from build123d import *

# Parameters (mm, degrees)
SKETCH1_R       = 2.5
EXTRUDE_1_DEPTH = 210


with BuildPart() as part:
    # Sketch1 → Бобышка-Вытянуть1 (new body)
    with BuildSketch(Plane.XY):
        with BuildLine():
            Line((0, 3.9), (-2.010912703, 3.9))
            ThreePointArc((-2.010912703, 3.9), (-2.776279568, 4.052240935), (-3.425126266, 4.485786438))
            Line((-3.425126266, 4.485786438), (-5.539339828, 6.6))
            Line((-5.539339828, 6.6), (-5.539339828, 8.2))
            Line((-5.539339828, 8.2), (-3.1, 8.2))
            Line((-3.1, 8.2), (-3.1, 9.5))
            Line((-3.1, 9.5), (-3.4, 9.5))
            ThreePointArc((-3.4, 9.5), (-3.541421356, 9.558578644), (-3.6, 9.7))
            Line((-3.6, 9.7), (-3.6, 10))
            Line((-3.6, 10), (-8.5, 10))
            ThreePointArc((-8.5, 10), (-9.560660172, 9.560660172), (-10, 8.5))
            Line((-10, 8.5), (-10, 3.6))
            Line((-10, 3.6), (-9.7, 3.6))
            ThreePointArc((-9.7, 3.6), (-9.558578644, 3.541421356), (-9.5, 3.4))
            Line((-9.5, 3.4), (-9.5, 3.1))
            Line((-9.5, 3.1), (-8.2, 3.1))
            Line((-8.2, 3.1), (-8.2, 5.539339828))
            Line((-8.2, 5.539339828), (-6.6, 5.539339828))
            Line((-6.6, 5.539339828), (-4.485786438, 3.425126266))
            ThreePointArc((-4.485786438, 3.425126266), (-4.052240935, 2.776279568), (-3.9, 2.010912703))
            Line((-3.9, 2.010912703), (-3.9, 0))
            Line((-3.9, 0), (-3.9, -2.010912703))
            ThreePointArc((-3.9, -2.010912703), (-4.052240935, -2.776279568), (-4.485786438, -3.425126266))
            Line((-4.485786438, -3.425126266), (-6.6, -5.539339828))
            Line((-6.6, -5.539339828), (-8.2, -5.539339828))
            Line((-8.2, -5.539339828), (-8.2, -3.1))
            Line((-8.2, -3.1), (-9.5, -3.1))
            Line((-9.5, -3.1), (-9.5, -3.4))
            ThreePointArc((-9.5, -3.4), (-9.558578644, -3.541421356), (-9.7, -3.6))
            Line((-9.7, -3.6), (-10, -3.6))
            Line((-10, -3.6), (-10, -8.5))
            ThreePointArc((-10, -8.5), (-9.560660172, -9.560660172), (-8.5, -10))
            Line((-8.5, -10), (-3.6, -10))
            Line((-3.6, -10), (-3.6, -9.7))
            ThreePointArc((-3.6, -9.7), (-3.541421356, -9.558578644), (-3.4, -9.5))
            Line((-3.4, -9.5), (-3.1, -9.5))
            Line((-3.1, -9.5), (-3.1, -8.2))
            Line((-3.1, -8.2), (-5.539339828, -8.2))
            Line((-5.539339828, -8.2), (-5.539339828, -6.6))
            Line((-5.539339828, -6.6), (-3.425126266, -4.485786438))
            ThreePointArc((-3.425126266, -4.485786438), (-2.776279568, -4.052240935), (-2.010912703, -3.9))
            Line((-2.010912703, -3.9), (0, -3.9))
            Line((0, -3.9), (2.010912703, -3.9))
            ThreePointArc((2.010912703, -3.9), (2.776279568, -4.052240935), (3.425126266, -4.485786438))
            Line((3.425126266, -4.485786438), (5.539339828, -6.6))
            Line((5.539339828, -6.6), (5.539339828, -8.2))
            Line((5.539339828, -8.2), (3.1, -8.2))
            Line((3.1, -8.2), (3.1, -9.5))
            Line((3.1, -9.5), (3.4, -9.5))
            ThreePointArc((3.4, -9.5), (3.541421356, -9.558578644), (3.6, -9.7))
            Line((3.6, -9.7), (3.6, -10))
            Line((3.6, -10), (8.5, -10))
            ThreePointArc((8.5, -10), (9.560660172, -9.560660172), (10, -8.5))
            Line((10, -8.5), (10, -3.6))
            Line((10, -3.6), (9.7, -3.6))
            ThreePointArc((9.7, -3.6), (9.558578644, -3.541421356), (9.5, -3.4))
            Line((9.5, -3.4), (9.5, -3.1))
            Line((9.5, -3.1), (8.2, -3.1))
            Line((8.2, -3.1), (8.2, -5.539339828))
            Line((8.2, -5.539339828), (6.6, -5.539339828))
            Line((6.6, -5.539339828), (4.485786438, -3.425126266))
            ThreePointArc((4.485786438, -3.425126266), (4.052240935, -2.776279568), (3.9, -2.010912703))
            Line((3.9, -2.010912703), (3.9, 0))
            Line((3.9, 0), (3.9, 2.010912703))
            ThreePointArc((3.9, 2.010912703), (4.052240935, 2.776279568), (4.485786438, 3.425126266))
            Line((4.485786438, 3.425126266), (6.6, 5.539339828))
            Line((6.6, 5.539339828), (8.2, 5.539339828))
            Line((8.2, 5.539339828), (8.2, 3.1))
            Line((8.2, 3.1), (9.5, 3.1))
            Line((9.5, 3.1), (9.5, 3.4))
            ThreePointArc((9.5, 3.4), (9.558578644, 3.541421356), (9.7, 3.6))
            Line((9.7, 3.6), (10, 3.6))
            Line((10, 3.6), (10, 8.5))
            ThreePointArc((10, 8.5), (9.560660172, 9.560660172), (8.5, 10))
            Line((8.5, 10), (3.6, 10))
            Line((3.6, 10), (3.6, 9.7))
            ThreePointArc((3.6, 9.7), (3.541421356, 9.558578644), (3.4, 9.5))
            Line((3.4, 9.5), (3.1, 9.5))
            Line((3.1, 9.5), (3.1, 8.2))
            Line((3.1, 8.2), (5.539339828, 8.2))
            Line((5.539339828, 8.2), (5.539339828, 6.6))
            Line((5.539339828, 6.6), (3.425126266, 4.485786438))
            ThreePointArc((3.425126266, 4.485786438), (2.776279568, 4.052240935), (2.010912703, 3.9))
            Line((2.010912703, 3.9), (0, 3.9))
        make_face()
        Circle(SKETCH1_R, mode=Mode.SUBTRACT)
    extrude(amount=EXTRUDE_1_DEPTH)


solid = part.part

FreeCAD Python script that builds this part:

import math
import FreeCAD as App
import Part
import Sketcher
from FreeCAD import Vector
Q = App.Units.Quantity

doc = App.newDocument("Part")
params = doc.addObject("Spreadsheet::Sheet", "Params")
for row, (alias, value) in enumerate([
    ("sketch1_diameter", "5 mm"),
    ("sketch1_radius", "2 mm"),
    ("sketch1_radius2", "0.2 mm"),
    ("sketch1_radius3", "1.5 mm"),
    ("sketch1_width", "0.3 mm"),
    ("pad1_length", "210 mm"),
], start=1):
    params.set(f"A{row}", alias)
    params.set(f"B{row}", "=" + value)
    params.setAlias(f"B{row}", alias)

body = doc.addObject("PartDesign::Body", "Body")

# Sketch on XY plane
sketch1 = body.newObject("Sketcher::SketchObject", "Sketch")
sketch1.AttachmentSupport = (doc.getObject("XY_Plane"), [""])
sketch1.MapMode = "FlatFace"
sketch1.addGeometry([
    Part.ArcOfCircle(Part.Circle(Vector(-2.010913, 5.9, 0), Vector(0, 0, 1), 2), math.radians(-135), math.radians(-90)),  # 0
    Part.LineSegment(Vector(-3.425126, 4.485786, 0), Vector(-5.53934, 6.6, 0)),  # 1
    Part.LineSegment(Vector(-5.53934, 6.6, 0), Vector(-5.53934, 8.2, 0)),  # 2
    Part.LineSegment(Vector(-5.53934, 8.2, 0), Vector(-3.1, 8.2, 0)),  # 3
    Part.LineSegment(Vector(-3.1, 8.2, 0), Vector(-3.1, 9.5, 0)),  # 4
    Part.LineSegment(Vector(-3.1, 9.5, 0), Vector(-3.4, 9.5, 0)),  # 5
    Part.ArcOfCircle(Part.Circle(Vector(-3.4, 9.7, 0), Vector(0, 0, 1), 0.2), math.radians(-180), math.radians(-90)),  # 6
    Part.LineSegment(Vector(-3.6, 9.7, 0), Vector(-3.6, 10, 0)),  # 7
    Part.LineSegment(Vector(-3.6, 10, 0), Vector(-8.5, 10, 0)),  # 8
    Part.ArcOfCircle(Part.Circle(Vector(-8.5, 8.5, 0), Vector(0, 0, 1), 1.5), math.radians(90), math.radians(180)),  # 9
    Part.LineSegment(Vector(-10, 8.5, 0), Vector(-10, 3.6, 0)),  # 10
    Part.LineSegment(Vector(-10, 3.6, 0), Vector(-9.7, 3.6, 0)),  # 11
    Part.ArcOfCircle(Part.Circle(Vector(-9.7, 3.4, 0), Vector(0, 0, 1), 0.2), math.radians(0), math.radians(90)),  # 12
    Part.LineSegment(Vector(-9.5, 3.4, 0), Vector(-9.5, 3.1, 0)),  # 13
    Part.LineSegment(Vector(-9.5, 3.1, 0), Vector(-8.2, 3.1, 0)),  # 14
    Part.LineSegment(Vector(-8.2, 3.1, 0), Vector(-8.2, 5.53934, 0)),  # 15
    Part.LineSegment(Vector(-8.2, 5.53934, 0), Vector(-6.6, 5.53934, 0)),  # 16
    Part.LineSegment(Vector(-6.6, 5.53934, 0), Vector(-4.485786, 3.425126, 0)),  # 17
    Part.ArcOfCircle(Part.Circle(Vector(-5.9, 2.010913, 0), Vector(0, 0, 1), 2), math.radians(0), math.radians(45)),  # 18
    Part.LineSegment(Vector(-3.9, 2.010913, 0), Vector(-3.9, -2.010913, 0)),  # 19
    Part.ArcOfCircle(Part.Circle(Vector(-5.9, -2.010913, 0), Vector(0, 0, 1), 2), math.radians(-45), math.radians(0)),  # 20
    Part.LineSegment(Vector(-4.485786, -3.425126, 0), Vector(-6.6, -5.53934, 0)),  # 21
    Part.LineSegment(Vector(-6.6, -5.53934, 0), Vector(-8.2, -5.53934, 0)),  # 22
    Part.LineSegment(Vector(-8.2, -5.53934, 0), Vector(-8.2, -3.1, 0)),  # 23
    Part.LineSegment(Vector(-8.2, -3.1, 0), Vector(-9.5, -3.1, 0)),  # 24
    Part.LineSegment(Vector(-9.5, -3.1, 0), Vector(-9.5, -3.4, 0)),  # 25
    Part.ArcOfCircle(Part.Circle(Vector(-9.7, -3.4, 0), Vector(0, 0, 1), 0.2), math.radians(-90), math.radians(0)),  # 26
    Part.LineSegment(Vector(-9.7, -3.6, 0), Vector(-10, -3.6, 0)),  # 27
    Part.LineSegment(Vector(-10, -3.6, 0), Vector(-10, -8.5, 0)),  # 28
    Part.ArcOfCircle(Part.Circle(Vector(-8.5, -8.5, 0), Vector(0, 0, 1), 1.5), math.radians(180), math.radians(270)),  # 29
    Part.LineSegment(Vector(-8.5, -10, 0), Vector(-3.6, -10, 0)),  # 30
    Part.LineSegment(Vector(-3.6, -10, 0), Vector(-3.6, -9.7, 0)),  # 31
    Part.ArcOfCircle(Part.Circle(Vector(-3.4, -9.7, 0), Vector(0, 0, 1), 0.2), math.radians(90), math.radians(180)),  # 32
    Part.LineSegment(Vector(-3.4, -9.5, 0), Vector(-3.1, -9.5, 0)),  # 33
    Part.LineSegment(Vector(-3.1, -9.5, 0), Vector(-3.1, -8.2, 0)),  # 34
    Part.LineSegment(Vector(-3.1, -8.2, 0), Vector(-5.53934, -8.2, 0)),  # 35
    Part.LineSegment(Vector(-5.53934, -8.2, 0), Vector(-5.53934, -6.6, 0)),  # 36
    Part.LineSegment(Vector(-5.53934, -6.6, 0), Vector(-3.425126, -4.485786, 0)),  # 37
    Part.ArcOfCircle(Part.Circle(Vector(-2.010913, -5.9, 0), Vector(0, 0, 1), 2), math.radians(90), math.radians(135)),  # 38
    Part.LineSegment(Vector(-2.010913, -3.9, 0), Vector(2.010913, -3.9, 0)),  # 39
    Part.ArcOfCircle(Part.Circle(Vector(2.010913, -5.9, 0), Vector(0, 0, 1), 2), math.radians(45), math.radians(90)),  # 40
    Part.LineSegment(Vector(3.425126, -4.485786, 0), Vector(5.53934, -6.6, 0)),  # 41
    Part.LineSegment(Vector(5.53934, -6.6, 0), Vector(5.53934, -8.2, 0)),  # 42
    Part.LineSegment(Vector(5.53934, -8.2, 0), Vector(3.1, -8.2, 0)),  # 43
    Part.LineSegment(Vector(3.1, -8.2, 0), Vector(3.1, -9.5, 0)),  # 44
    Part.LineSegment(Vector(3.1, -9.5, 0), Vector(3.4, -9.5, 0)),  # 45
    Part.ArcOfCircle(Part.Circle(Vector(3.4, -9.7, 0), Vector(0, 0, 1), 0.2), math.radians(0), math.radians(90)),  # 46
    Part.LineSegment(Vector(3.6, -9.7, 0), Vector(3.6, -10, 0)),  # 47
    Part.LineSegment(Vector(3.6, -10, 0), Vector(8.5, -10, 0)),  # 48
    Part.ArcOfCircle(Part.Circle(Vector(8.5, -8.5, 0), Vector(0, 0, 1), 1.5), math.radians(-90), math.radians(0)),  # 49
    Part.LineSegment(Vector(10, -8.5, 0), Vector(10, -3.6, 0)),  # 50
    Part.LineSegment(Vector(10, -3.6, 0), Vector(9.7, -3.6, 0)),  # 51
    Part.ArcOfCircle(Part.Circle(Vector(9.7, -3.4, 0), Vector(0, 0, 1), 0.2), math.radians(-180), math.radians(-90)),  # 52
    Part.LineSegment(Vector(9.5, -3.4, 0), Vector(9.5, -3.1, 0)),  # 53
    Part.LineSegment(Vector(9.5, -3.1, 0), Vector(8.2, -3.1, 0)),  # 54
    Part.LineSegment(Vector(8.2, -3.1, 0), Vector(8.2, -5.53934, 0)),  # 55
    Part.LineSegment(Vector(8.2, -5.53934, 0), Vector(6.6, -5.53934, 0)),  # 56
    Part.LineSegment(Vector(6.6, -5.53934, 0), Vector(4.485786, -3.425126, 0)),  # 57
    Part.ArcOfCircle(Part.Circle(Vector(5.9, -2.010913, 0), Vector(0, 0, 1), 2), math.radians(180), math.radians(225)),  # 58
    Part.LineSegment(Vector(3.9, -2.010913, 0), Vector(3.9, 2.010913, 0)),  # 59
    Part.ArcOfCircle(Part.Circle(Vector(5.9, 2.010913, 0), Vector(0, 0, 1), 2), math.radians(135), math.radians(180)),  # 60
    Part.LineSegment(Vector(4.485786, 3.425126, 0), Vector(6.6, 5.53934, 0)),  # 61
    Part.LineSegment(Vector(6.6, 5.53934, 0), Vector(8.2, 5.53934, 0)),  # 62
    Part.LineSegment(Vector(8.2, 5.53934, 0), Vector(8.2, 3.1, 0)),  # 63
    Part.LineSegment(Vector(8.2, 3.1, 0), Vector(9.5, 3.1, 0)),  # 64
    Part.LineSegment(Vector(9.5, 3.1, 0), Vector(9.5, 3.4, 0)),  # 65
    Part.ArcOfCircle(Part.Circle(Vector(9.7, 3.4, 0), Vector(0, 0, 1), 0.2), math.radians(90), math.radians(180)),  # 66
    Part.LineSegment(Vector(9.7, 3.6, 0), Vector(10, 3.6, 0)),  # 67
    Part.LineSegment(Vector(10, 3.6, 0), Vector(10, 8.5, 0)),  # 68
    Part.ArcOfCircle(Part.Circle(Vector(8.5, 8.5, 0), Vector(0, 0, 1), 1.5), math.radians(0), math.radians(90)),  # 69
    Part.LineSegment(Vector(8.5, 10, 0), Vector(3.6, 10, 0)),  # 70
    Part.LineSegment(Vector(3.6, 10, 0), Vector(3.6, 9.7, 0)),  # 71
    Part.ArcOfCircle(Part.Circle(Vector(3.4, 9.7, 0), Vector(0, 0, 1), 0.2), math.radians(-90), math.radians(0)),  # 72
    Part.LineSegment(Vector(3.4, 9.5, 0), Vector(3.1, 9.5, 0)),  # 73
    Part.LineSegment(Vector(3.1, 9.5, 0), Vector(3.1, 8.2, 0)),  # 74
    Part.LineSegment(Vector(3.1, 8.2, 0), Vector(5.53934, 8.2, 0)),  # 75
    Part.LineSegment(Vector(5.53934, 8.2, 0), Vector(5.53934, 6.6, 0)),  # 76
    Part.LineSegment(Vector(5.53934, 6.6, 0), Vector(3.425126, 4.485786, 0)),  # 77
    Part.ArcOfCircle(Part.Circle(Vector(2.010913, 5.9, 0), Vector(0, 0, 1), 2), math.radians(-90), math.radians(-45)),  # 78
    Part.LineSegment(Vector(2.010913, 3.9, 0), Vector(-2.010913, 3.9, 0)),  # 79
    Part.Circle(Vector(0, 0, 0), Vector(0, 0, 1), 2.5),  # 80
], False)
sketch1.addConstraint([
    Sketcher.Constraint("Tangent", 0, 1, 1, 1),
    Sketcher.Constraint("Coincident", 1, 2, 2, 1),
    Sketcher.Constraint("Coincident", 2, 2, 3, 1),
    Sketcher.Constraint("Coincident", 3, 2, 4, 1),
    Sketcher.Constraint("Coincident", 4, 2, 5, 1),
    Sketcher.Constraint("Tangent", 5, 2, 6, 2),
    Sketcher.Constraint("Tangent", 6, 1, 7, 1),
    Sketcher.Constraint("Coincident", 7, 2, 8, 1),
    Sketcher.Constraint("Tangent", 8, 2, 9, 1),
    Sketcher.Constraint("Tangent", 9, 2, 10, 1),
    Sketcher.Constraint("Coincident", 10, 2, 11, 1),
    Sketcher.Constraint("Tangent", 11, 2, 12, 2),
    Sketcher.Constraint("Tangent", 12, 1, 13, 1),
    Sketcher.Constraint("Coincident", 13, 2, 14, 1),
    Sketcher.Constraint("Coincident", 14, 2, 15, 1),
    Sketcher.Constraint("Coincident", 15, 2, 16, 1),
    Sketcher.Constraint("Coincident", 16, 2, 17, 1),
    Sketcher.Constraint("Tangent", 17, 2, 18, 2),
    Sketcher.Constraint("Tangent", 18, 1, 19, 1),
    Sketcher.Constraint("Tangent", 19, 2, 20, 2),
    Sketcher.Constraint("Tangent", 20, 1, 21, 1),
    Sketcher.Constraint("Coincident", 21, 2, 22, 1),
    Sketcher.Constraint("Coincident", 22, 2, 23, 1),
    Sketcher.Constraint("Coincident", 23, 2, 24, 1),
    Sketcher.Constraint("Coincident", 24, 2, 25, 1),
    Sketcher.Constraint("Tangent", 25, 2, 26, 2),
    Sketcher.Constraint("Tangent", 26, 1, 27, 1),
    Sketcher.Constraint("Coincident", 27, 2, 28, 1),
    Sketcher.Constraint("Tangent", 28, 2, 29, 1),
    Sketcher.Constraint("Tangent", 29, 2, 30, 1),
    Sketcher.Constraint("Coincident", 30, 2, 31, 1),
    Sketcher.Constraint("Tangent", 31, 2, 32, 2),
    Sketcher.Constraint("Tangent", 32, 1, 33, 1),
    Sketcher.Constraint("Coincident", 33, 2, 34, 1),
    Sketcher.Constraint("Coincident", 34, 2, 35, 1),
    Sketcher.Constraint("Coincident", 35, 2, 36, 1),
    Sketcher.Constraint("Coincident", 36, 2, 37, 1),
    Sketcher.Constraint("Tangent", 37, 2, 38, 2),
    Sketcher.Constraint("Tangent", 38, 1, 39, 1),
    Sketcher.Constraint("Tangent", 39, 2, 40, 2),
    Sketcher.Constraint("Tangent", 40, 1, 41, 1),
    Sketcher.Constraint("Coincident", 41, 2, 42, 1),
    Sketcher.Constraint("Coincident", 42, 2, 43, 1),
    Sketcher.Constraint("Coincident", 43, 2, 44, 1),
    Sketcher.Constraint("Coincident", 44, 2, 45, 1),
    Sketcher.Constraint("Tangent", 45, 2, 46, 2),
    Sketcher.Constraint("Tangent", 46, 1, 47, 1),
    Sketcher.Constraint("Coincident", 47, 2, 48, 1),
    Sketcher.Constraint("Tangent", 48, 2, 49, 1),
    Sketcher.Constraint("Tangent", 49, 2, 50, 1),
    Sketcher.Constraint("Coincident", 50, 2, 51, 1),
    Sketcher.Constraint("Tangent", 51, 2, 52, 2),
    Sketcher.Constraint("Tangent", 52, 1, 53, 1),
    Sketcher.Constraint("Coincident", 53, 2, 54, 1),
    Sketcher.Constraint("Coincident", 54, 2, 55, 1),
    Sketcher.Constraint("Coincident", 55, 2, 56, 1),
    Sketcher.Constraint("Coincident", 56, 2, 57, 1),
    Sketcher.Constraint("Tangent", 57, 2, 58, 2),
    Sketcher.Constraint("Tangent", 58, 1, 59, 1),
    Sketcher.Constraint("Tangent", 59, 2, 60, 2),
    Sketcher.Constraint("Tangent", 60, 1, 61, 1),
    Sketcher.Constraint("Coincident", 61, 2, 62, 1),
    Sketcher.Constraint("Coincident", 62, 2, 63, 1),
    Sketcher.Constraint("Coincident", 63, 2, 64, 1),
    Sketcher.Constraint("Coincident", 64, 2, 65, 1),
    Sketcher.Constraint("Tangent", 65, 2, 66, 2),
    Sketcher.Constraint("Tangent", 66, 1, 67, 1),
    Sketcher.Constraint("Coincident", 67, 2, 68, 1),
    Sketcher.Constraint("Tangent", 68, 2, 69, 1),
    Sketcher.Constraint("Tangent", 69, 2, 70, 1),
    Sketcher.Constraint("Coincident", 70, 2, 71, 1),
    Sketcher.Constraint("Tangent", 71, 2, 72, 2),
    Sketcher.Constraint("Tangent", 72, 1, 73, 1),
    Sketcher.Constraint("Coincident", 73, 2, 74, 1),
    Sketcher.Constraint("Coincident", 74, 2, 75, 1),
    Sketcher.Constraint("Coincident", 75, 2, 76, 1),
    Sketcher.Constraint("Coincident", 76, 2, 77, 1),
    Sketcher.Constraint("Tangent", 77, 2, 78, 2),
    Sketcher.Constraint("Tangent", 78, 1, 79, 1),
    Sketcher.Constraint("Tangent", 79, 2, 0, 2),
    Sketcher.Constraint("Vertical", 2),
    Sketcher.Constraint("Horizontal", 3),
    Sketcher.Constraint("Vertical", 4),
    Sketcher.Constraint("Horizontal", 5),
    Sketcher.Constraint("Vertical", 7),
    Sketcher.Constraint("Horizontal", 8),
    Sketcher.Constraint("Vertical", 10),
    Sketcher.Constraint("Horizontal", 11),
    Sketcher.Constraint("Vertical", 13),
    Sketcher.Constraint("Horizontal", 14),
    Sketcher.Constraint("Vertical", 15),
    Sketcher.Constraint("Horizontal", 16),
    Sketcher.Constraint("Vertical", 19),
    Sketcher.Constraint("Horizontal", 22),
    Sketcher.Constraint("Vertical", 23),
    Sketcher.Constraint("Horizontal", 24),
    Sketcher.Constraint("Vertical", 25),
    Sketcher.Constraint("Horizontal", 27),
    Sketcher.Constraint("Vertical", 28),
    Sketcher.Constraint("Horizontal", 30),
    Sketcher.Constraint("Vertical", 31),
    Sketcher.Constraint("Horizontal", 33),
    Sketcher.Constraint("Vertical", 34),
    Sketcher.Constraint("Horizontal", 35),
    Sketcher.Constraint("Vertical", 36),
    Sketcher.Constraint("Horizontal", 39),
    Sketcher.Constraint("Vertical", 42),
    Sketcher.Constraint("Horizontal", 43),
    Sketcher.Constraint("Vertical", 44),
    Sketcher.Constraint("Horizontal", 45),
    Sketcher.Constraint("Vertical", 47),
    Sketcher.Constraint("Horizontal", 48),
    Sketcher.Constraint("Vertical", 50),
    Sketcher.Constraint("Horizontal", 51),
    Sketcher.Constraint("Vertical", 53),
    Sketcher.Constraint("Horizontal", 54),
    Sketcher.Constraint("Vertical", 55),
    Sketcher.Constraint("Horizontal", 56),
    Sketcher.Constraint("Vertical", 59),
    Sketcher.Constraint("Horizontal", 62),
    Sketcher.Constraint("Vertical", 63),
    Sketcher.Constraint("Horizontal", 64),
    Sketcher.Constraint("Vertical", 65),
    Sketcher.Constraint("Horizontal", 67),
    Sketcher.Constraint("Vertical", 68),
    Sketcher.Constraint("Horizontal", 70),
    Sketcher.Constraint("Vertical", 71),
    Sketcher.Constraint("Horizontal", 73),
    Sketcher.Constraint("Vertical", 74),
    Sketcher.Constraint("Horizontal", 75),
    Sketcher.Constraint("Vertical", 76),
    Sketcher.Constraint("Horizontal", 79),
    Sketcher.Constraint("Coincident", 80, 3, -1, 1),
    Sketcher.Constraint("Equal", 6, 12),
    Sketcher.Constraint("Equal", 0, 18),
    Sketcher.Constraint("Equal", 18, 20),
    Sketcher.Constraint("Equal", 12, 26),
    Sketcher.Constraint("Equal", 9, 29),
    Sketcher.Constraint("Equal", 26, 32),
    Sketcher.Constraint("Equal", 20, 38),
    Sketcher.Constraint("Equal", 38, 40),
    Sketcher.Constraint("Equal", 32, 46),
    Sketcher.Constraint("Equal", 29, 49),
    Sketcher.Constraint("Equal", 46, 52),
    Sketcher.Constraint("Equal", 40, 58),
    Sketcher.Constraint("Equal", 58, 60),
    Sketcher.Constraint("Equal", 52, 66),
    Sketcher.Constraint("Equal", 49, 69),
    Sketcher.Constraint("Equal", 66, 72),
    Sketcher.Constraint("Equal", 60, 78),
    Sketcher.Constraint("Symmetric", 0, 3, 40, 3, -1, 1),
    Sketcher.Constraint("Symmetric", 6, 3, 46, 3, -1, 1),
    Sketcher.Constraint("Symmetric", 9, 3, 49, 3, -1, 1),
    Sketcher.Constraint("Symmetric", 12, 3, 52, 3, -1, 1),
    Sketcher.Constraint("Symmetric", 18, 3, 58, 3, -1, 1),
    Sketcher.Constraint("Symmetric", 26, 3, 66, 3, -1, 1),
    Sketcher.Constraint("Symmetric", 29, 3, 69, 3, -1, 1),
    Sketcher.Constraint("Symmetric", 32, 3, 72, 3, -1, 1),
    Sketcher.Constraint("Symmetric", 1, 2, 41, 2, -1, 1),
    Sketcher.Constraint("Symmetric", 3, 2, 43, 2, -1, 1),
    Sketcher.Constraint("Symmetric", 14, 2, 54, 2, -1, 1),
    Sketcher.Constraint("Symmetric", 16, 2, 56, 2, -1, 1),
    Sketcher.Constraint("Symmetric", 20, 1, 60, 1, -1, 1),
    Sketcher.Constraint("Symmetric", 22, 2, 62, 2, -1, 1),
    Sketcher.Constraint("Symmetric", 34, 2, 74, 2, -1, 1),
    Sketcher.Constraint("Symmetric", 36, 2, 76, 2, -1, 1),
    Sketcher.Constraint("Symmetric", 32, 3, 46, 3, -2),
    Sketcher.Constraint("Symmetric", 29, 3, 49, 3, -2),
    Sketcher.Constraint("Symmetric", 26, 3, 52, 3, -2),
    Sketcher.Constraint("Symmetric", 37, 2, 40, 1, -2),
    Sketcher.Constraint("Symmetric", 35, 2, 42, 2, -2),
    Sketcher.Constraint("Symmetric", 23, 2, 54, 2, -2),
    Sketcher.Constraint("Symmetric", 21, 2, 56, 2, -2),
    Sketcher.Constraint("Parallel", 1, 17),
    Sketcher.Constraint("Perpendicular", 17, 21),
    Sketcher.Constraint("Parallel", 21, 37),
    Sketcher.Constraint("Parallel", 61, 77),
    Sketcher.Constraint("Horizontal", 14, 2, 63, 2),
    Sketcher.Constraint("Vertical", 4, 2, 33, 2),
    Sketcher.Constraint("Equal", 5, 11),
    Sketcher.Constraint("Equal", 62, 2),
    Sketcher.Constraint("Equal", 64, 4),
    Sketcher.Constraint("Equal", 73, 7),
    Sketcher.Constraint("Equal", 70, 10),
    Sketcher.Constraint("Equal", 7, 13),
    Sketcher.Constraint("Equal", 75, 15),
    Sketcher.Constraint("Equal", 79, 19),
    Sketcher.Constraint("Equal", 1, 17),
    Sketcher.Constraint("Diameter", 80, Q("5 mm")),
    Sketcher.Constraint("Radius", 0, Q("2 mm")),
    Sketcher.Constraint("Radius", 6, Q("0.2 mm")),
    Sketcher.Constraint("Radius", 9, Q("1.5 mm")),
    Sketcher.Constraint("DistanceX", 5, 2, 5, 1, Q("0.3 mm")),
    Sketcher.Constraint("DistanceX", 8, 2, 8, 1, Q("4.9 mm")),
    Sketcher.Constraint("DistanceX", 14, 1, 14, 2, Q("1.3 mm")),
    Sketcher.Constraint("DistanceX", 16, 1, 16, 2, Q("1.6 mm")),
    Sketcher.Constraint("DistanceY", -1, 1, 7, 2, Q("10 mm")),
    Sketcher.Constraint("DistanceY", -1, 1, 0, 3, Q("5.9 mm")),
    Sketcher.Constraint("DistanceX", 3, 1, 3, 2, Q("2.43934 mm")),
])
sketch1.setExpression("Constraints[188]", "Params.sketch1_diameter")
sketch1.setExpression("Constraints[189]", "Params.sketch1_radius")
sketch1.setExpression("Constraints[190]", "Params.sketch1_radius2")
sketch1.setExpression("Constraints[191]", "Params.sketch1_radius3")
sketch1.setExpression("Constraints[192]", "Params.sketch1_width")
pad1 = body.newObject("PartDesign::Pad", "Pad")
pad1.Profile = sketch1
pad1.setExpression("Length", "Params.pad1_length")

doc.recompute()
